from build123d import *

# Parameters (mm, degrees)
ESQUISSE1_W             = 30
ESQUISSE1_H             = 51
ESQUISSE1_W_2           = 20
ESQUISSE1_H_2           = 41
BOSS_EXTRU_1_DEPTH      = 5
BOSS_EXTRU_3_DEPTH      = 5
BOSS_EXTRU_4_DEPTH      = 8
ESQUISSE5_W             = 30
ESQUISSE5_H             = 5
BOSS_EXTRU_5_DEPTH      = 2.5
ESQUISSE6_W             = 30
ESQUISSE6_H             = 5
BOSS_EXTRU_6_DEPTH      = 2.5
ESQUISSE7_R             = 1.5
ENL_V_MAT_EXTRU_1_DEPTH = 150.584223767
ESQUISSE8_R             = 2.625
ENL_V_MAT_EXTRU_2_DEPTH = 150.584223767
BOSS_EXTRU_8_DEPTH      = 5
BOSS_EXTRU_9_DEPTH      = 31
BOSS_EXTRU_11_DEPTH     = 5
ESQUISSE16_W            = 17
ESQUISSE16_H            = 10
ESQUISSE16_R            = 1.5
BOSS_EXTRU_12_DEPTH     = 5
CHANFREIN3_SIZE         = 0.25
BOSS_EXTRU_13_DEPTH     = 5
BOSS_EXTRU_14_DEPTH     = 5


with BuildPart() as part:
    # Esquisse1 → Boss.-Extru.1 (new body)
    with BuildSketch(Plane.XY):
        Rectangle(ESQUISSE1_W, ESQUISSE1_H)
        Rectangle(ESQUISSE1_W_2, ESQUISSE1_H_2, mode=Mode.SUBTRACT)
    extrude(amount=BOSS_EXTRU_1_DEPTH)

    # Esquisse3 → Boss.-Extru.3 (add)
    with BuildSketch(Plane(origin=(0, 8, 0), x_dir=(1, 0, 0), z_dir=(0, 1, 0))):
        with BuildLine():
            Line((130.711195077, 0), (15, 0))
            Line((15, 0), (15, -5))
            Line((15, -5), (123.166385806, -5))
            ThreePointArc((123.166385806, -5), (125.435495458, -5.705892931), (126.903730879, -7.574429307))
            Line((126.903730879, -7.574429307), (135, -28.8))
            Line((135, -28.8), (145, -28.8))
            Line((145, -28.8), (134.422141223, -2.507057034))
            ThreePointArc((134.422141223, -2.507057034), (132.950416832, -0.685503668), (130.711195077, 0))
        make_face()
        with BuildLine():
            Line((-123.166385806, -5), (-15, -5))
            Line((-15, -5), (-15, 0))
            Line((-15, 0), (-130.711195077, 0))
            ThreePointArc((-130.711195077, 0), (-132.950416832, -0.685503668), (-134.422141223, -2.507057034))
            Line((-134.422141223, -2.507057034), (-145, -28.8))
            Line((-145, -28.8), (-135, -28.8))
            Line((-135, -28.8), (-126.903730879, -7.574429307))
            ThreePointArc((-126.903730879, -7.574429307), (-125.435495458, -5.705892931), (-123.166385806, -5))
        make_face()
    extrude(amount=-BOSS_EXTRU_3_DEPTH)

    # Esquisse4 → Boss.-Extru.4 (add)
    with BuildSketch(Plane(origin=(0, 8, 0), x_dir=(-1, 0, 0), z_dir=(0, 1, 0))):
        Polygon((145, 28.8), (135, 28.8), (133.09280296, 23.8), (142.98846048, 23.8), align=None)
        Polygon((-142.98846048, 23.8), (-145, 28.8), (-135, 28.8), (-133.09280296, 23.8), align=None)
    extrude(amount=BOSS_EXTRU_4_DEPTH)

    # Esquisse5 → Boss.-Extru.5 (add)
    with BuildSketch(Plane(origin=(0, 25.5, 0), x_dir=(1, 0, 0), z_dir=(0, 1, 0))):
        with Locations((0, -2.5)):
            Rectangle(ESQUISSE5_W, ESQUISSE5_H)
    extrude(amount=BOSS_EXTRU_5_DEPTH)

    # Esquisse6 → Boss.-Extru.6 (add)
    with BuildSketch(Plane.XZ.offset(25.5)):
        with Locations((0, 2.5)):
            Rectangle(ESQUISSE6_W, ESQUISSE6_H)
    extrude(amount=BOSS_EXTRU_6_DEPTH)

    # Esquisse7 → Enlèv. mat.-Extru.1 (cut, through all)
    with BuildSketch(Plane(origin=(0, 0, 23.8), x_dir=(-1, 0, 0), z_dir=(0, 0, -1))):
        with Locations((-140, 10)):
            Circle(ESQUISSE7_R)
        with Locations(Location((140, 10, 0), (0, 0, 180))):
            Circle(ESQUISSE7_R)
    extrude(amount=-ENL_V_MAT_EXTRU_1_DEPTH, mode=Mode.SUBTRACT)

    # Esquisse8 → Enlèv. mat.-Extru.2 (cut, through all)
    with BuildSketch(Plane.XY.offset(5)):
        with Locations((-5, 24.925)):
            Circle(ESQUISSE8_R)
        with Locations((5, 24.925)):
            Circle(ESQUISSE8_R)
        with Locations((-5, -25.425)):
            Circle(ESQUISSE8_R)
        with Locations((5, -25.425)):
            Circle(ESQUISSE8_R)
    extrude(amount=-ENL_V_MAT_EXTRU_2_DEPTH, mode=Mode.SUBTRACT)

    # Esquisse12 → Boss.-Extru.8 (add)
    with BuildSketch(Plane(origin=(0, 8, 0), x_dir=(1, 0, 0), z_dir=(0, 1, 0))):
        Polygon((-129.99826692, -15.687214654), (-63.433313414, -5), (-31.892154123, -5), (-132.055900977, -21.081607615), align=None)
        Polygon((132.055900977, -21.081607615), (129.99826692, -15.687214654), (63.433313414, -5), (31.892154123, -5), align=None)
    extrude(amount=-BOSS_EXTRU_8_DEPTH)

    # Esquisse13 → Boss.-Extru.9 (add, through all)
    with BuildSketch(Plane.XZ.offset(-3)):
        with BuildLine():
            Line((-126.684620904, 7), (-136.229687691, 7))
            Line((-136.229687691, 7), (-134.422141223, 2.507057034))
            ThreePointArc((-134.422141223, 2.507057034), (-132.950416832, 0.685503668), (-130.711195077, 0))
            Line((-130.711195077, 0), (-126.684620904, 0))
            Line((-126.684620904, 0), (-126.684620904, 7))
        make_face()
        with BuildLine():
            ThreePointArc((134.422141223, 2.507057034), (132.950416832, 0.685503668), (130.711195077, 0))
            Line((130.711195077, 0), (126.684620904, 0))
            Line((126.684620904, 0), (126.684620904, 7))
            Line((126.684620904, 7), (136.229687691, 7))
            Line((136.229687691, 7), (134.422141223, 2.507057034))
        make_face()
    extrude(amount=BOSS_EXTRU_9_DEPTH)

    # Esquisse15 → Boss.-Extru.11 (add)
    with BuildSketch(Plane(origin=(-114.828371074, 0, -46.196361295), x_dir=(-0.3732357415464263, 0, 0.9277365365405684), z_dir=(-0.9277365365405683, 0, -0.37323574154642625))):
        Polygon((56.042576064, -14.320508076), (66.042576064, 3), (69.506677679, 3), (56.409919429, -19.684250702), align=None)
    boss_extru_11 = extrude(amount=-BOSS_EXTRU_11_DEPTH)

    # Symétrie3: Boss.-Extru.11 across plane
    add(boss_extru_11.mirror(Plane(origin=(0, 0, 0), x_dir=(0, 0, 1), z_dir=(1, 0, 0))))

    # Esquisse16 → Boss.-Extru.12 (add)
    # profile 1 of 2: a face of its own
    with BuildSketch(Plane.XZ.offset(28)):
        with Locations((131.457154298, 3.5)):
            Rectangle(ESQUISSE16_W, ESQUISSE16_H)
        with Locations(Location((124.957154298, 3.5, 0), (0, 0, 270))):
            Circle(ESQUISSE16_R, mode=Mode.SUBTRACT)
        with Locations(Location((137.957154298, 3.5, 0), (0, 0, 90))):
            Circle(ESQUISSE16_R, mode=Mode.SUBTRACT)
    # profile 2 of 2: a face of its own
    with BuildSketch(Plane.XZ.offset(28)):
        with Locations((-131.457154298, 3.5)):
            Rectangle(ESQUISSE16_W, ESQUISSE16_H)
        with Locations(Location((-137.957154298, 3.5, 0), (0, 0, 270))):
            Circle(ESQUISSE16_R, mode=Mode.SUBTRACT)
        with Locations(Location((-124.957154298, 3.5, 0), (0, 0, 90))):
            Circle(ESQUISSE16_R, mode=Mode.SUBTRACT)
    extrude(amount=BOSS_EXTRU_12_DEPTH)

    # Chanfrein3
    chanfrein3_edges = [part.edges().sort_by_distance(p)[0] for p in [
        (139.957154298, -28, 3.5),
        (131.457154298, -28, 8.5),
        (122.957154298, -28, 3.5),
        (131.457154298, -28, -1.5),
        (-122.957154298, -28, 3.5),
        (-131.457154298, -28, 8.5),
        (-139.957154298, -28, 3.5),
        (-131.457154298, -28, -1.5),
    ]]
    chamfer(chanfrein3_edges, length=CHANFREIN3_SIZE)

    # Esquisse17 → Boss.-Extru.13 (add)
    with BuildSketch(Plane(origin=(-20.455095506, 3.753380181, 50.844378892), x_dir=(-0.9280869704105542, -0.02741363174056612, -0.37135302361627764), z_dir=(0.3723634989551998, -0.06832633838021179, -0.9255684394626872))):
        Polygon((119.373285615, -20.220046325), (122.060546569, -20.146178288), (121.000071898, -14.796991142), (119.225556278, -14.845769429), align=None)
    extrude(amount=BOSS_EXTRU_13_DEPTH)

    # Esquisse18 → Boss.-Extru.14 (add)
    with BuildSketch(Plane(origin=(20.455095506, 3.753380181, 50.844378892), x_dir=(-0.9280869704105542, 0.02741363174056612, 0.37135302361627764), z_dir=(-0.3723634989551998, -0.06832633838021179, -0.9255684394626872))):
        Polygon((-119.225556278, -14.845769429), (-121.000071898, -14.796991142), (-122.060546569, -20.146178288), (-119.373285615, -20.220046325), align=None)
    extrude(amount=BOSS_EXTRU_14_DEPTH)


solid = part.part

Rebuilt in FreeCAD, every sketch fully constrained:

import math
import FreeCAD as App
import Part
import Sketcher

V = App.Vector
Q = App.Units.Quantity


def edges_at(feature, points):
    """Names of the edges that pass closest to the given points."""
    edges = feature.Shape.Edges
    near = lambda p: min(range(len(edges)), key=lambda i: edges[i].distToShape(Part.Vertex(*p))[0])
    return sorted({f"Edge{near(p) + 1}" for p in points})


def add_polygon(sketch, points):
    """Adds a closed chain of lines whose ends are joined by coincident constraints."""
    first, n = sketch.GeometryCount, len(points)
    for a, b in zip(points, points[1:] + points[:1]):
        sketch.addGeometry(Part.LineSegment(App.Vector(*a, 0), App.Vector(*b, 0)), False)
    for i in range(n):
        sketch.addConstraint(Sketcher.Constraint("Coincident", first + i, 2, first + (i + 1) % n, 1))

doc = App.newDocument("Part")
body = doc.addObject("PartDesign::Body", "Body")

# Sketch on XY plane
sketch1 = body.newObject("Sketcher::SketchObject", "Sketch")
sketch1.AttachmentSupport = (doc.getObject("XY_Plane"), [""])
sketch1.MapMode = "FlatFace"
add_polygon(sketch1, [(-15, 26), (-15, -26), (15, -26), (15, 26)])  # lines 0-3
add_polygon(sketch1, [(10, -20), (-10, -20), (-10, 20), (10, 20)])  # lines 4-7
sketch1.addConstraint([
    Sketcher.Constraint("Vertical", 0),
    Sketcher.Constraint("Horizontal", 1),
    Sketcher.Constraint("Vertical", 2),
    Sketcher.Constraint("Horizontal", 3),
    Sketcher.Constraint("Horizontal", 4),
    Sketcher.Constraint("Vertical", 5),
    Sketcher.Constraint("Horizontal", 6),
    Sketcher.Constraint("Vertical", 7),
    Sketcher.Constraint("Symmetric", 0, 2, 2, 2, -1, 1),
    Sketcher.Constraint("Symmetric", 4, 2, 6, 2, -1, 1),
    Sketcher.Constraint("DistanceX", 1, 1, 1, 2, Q("30 mm")),
    Sketcher.Constraint("DistanceX", 4, 2, 4, 1, Q("20 mm")),
    Sketcher.Constraint("DistanceY", 0, 2, 0, 1, Q("51 mm")),
    Sketcher.Constraint("DistanceY", 5, 1, 5, 2, Q("41 mm")),
])
pad1 = body.newObject("PartDesign::Pad", "Pad")
pad1.Profile = sketch1
pad1.Length = 5

# Sketch on XZ plane
sketch2 = body.newObject("Sketcher::SketchObject", "Sketch001")
sketch2.AttachmentSupport = (doc.getObject("XZ_Plane"), [""])
sketch2.MapMode = "FlatFace"
sketch2.AttachmentOffset = App.Placement(V(0, 0, -8), App.Rotation())
sketch2.addGeometry([
    Part.LineSegment(V(130.7, 0, 0), V(15, 0, 0)),  # 0
    Part.LineSegment(V(15, 0, 0), V(15, 5, 0)),  # 1
    Part.LineSegment(V(15, 5, 0), V(123.2, 5, 0)),  # 2
    Part.ArcOfCircle(Part.Circle(V(123.2, 9, 0), V(0, 0, 1), 4), math.radians(-90), math.radians(-21)),  # 3
    Part.LineSegment(V(126.9, 7.6, 0), V(135, 28.8, 0)),  # 4
    Part.LineSegment(V(135, 28.8, 0), V(145, 28.8, 0)),  # 5
    Part.LineSegment(V(145, 28.8, 0), V(134.4, 2.5, 0)),  # 6
    Part.ArcOfCircle(Part.Circle(V(130.7, 4, 0), V(0, 0, 1), 4), math.radians(-90), math.radians(-22)),  # 7
    Part.LineSegment(V(-123.2, 5, 0), V(-15, 5, 0)),  # 8
    Part.LineSegment(V(-15, 5, 0), V(-15, 0, 0)),  # 9
    Part.LineSegment(V(-15, 0, 0), V(-130.7, 0, 0)),  # 10
    Part.ArcOfCircle(Part.Circle(V(-130.7, 4, 0), V(0, 0, 1), 4), math.radians(-158), math.radians(-90)),  # 11
    Part.LineSegment(V(-134.4, 2.5, 0), V(-145, 28.8, 0)),  # 12
    Part.LineSegment(V(-145, 28.8, 0), V(-135, 28.8, 0)),  # 13
    Part.LineSegment(V(-135, 28.8, 0), V(-126.9, 7.6, 0)),  # 14
    Part.ArcOfCircle(Part.Circle(V(-123.2, 9, 0), V(0, 0, 1), 4), math.radians(-159), math.radians(-90)),  # 15
], False)
sketch2.addConstraint([
    Sketcher.Constraint("Coincident", 0, 2, 1, 1),
    Sketcher.Constraint("Coincident", 1, 2, 2, 1),
    Sketcher.Constraint("Tangent", 2, 2, 3, 1),
    Sketcher.Constraint("Tangent", 3, 2, 4, 1),
    Sketcher.Constraint("Coincident", 4, 2, 5, 1),
    Sketcher.Constraint("Coincident", 5, 2, 6, 1),
    Sketcher.Constraint("Tangent", 6, 2, 7, 2),
    Sketcher.Constraint("Tangent", 7, 1, 0, 1),
    Sketcher.Constraint("Coincident", 8, 2, 9, 1),
    Sketcher.Constraint("Coincident", 9, 2, 10, 1),
    Sketcher.Constraint("Tangent", 10, 2, 11, 2),
    Sketcher.Constraint("Tangent", 11, 1, 12, 1),
    Sketcher.Constraint("Coincident", 12, 2, 13, 1),
    Sketcher.Constraint("Coincident", 13, 2, 14, 1),
    Sketcher.Constraint("Tangent", 14, 2, 15, 1),
    Sketcher.Constraint("Tangent", 15, 2, 8, 1),
    Sketcher.Constraint("Horizontal", 0),
    Sketcher.Constraint("Vertical", 1),
    Sketcher.Constraint("Horizontal", 2),
    Sketcher.Constraint("Horizontal", 5),
    Sketcher.Constraint("Horizontal", 8),
    Sketcher.Constraint("Vertical", 9),
    Sketcher.Constraint("Horizontal", 10),
    Sketcher.Constraint("Horizontal", 13),
    Sketcher.Constraint("Equal", 3, 7),
    Sketcher.Constraint("Equal", 7, 11),
    Sketcher.Constraint("Equal", 11, 15),
    Sketcher.Constraint("Symmetric", 0, 2, 9, 2, -1, 1),
    Sketcher.Constraint("Symmetric", 7, 3, 11, 3, -2),
    Sketcher.Constraint("Symmetric", 3, 3, 15, 3, -2),
    Sketcher.Constraint("Symmetric", 5, 2, 12, 2, -2),
    Sketcher.Constraint("Horizontal", 3, 2, 14, 2),
    Sketcher.Constraint("Radius", 3, Q("4 mm")),
    Sketcher.Constraint("DistanceX", 5, 1, 5, 2, Q("10 mm")),
    Sketcher.Constraint("DistanceY", 1, 1, 1, 2, Q("5 mm")),
    Sketcher.Constraint("DistanceX", -1, 1, 0, 2, Q("15 mm")),
    Sketcher.Constraint("DistanceX", -1, 1, 4, 2, Q("135 mm")),
    Sketcher.Constraint("DistanceY", -1, 1, 4, 2, Q("28.8 mm")),
    Sketcher.Constraint("Distance", 4, Q("22.717272 mm")),
    Sketcher.Constraint("Distance", 6, Q("28.340959 mm")),
])
pad2 = body.newObject("PartDesign::Pad", "Pad001")
pad2.Profile = sketch2
pad2.Length = 5

# Sketch on XZ plane
sketch3 = body.newObject("Sketcher::SketchObject", "Sketch002")
sketch3.AttachmentSupport = (doc.getObject("XZ_Plane"), [""])
sketch3.MapMode = "FlatFace"
sketch3.AttachmentOffset = App.Placement(V(0, 0, -8), App.Rotation())
add_polygon(sketch3, [(-145, 29), (-135, 29), (-133, 24), (-143, 24)])  # lines 0-3
add_polygon(sketch3, [(145, 29), (143, 24), (133, 24), (135, 29)])  # lines 4-7
sketch3.addConstraint([
    Sketcher.Constraint("Horizontal", 0),
    Sketcher.Constraint("Horizontal", 2),
    Sketcher.Constraint("Horizontal", 5),
    Sketcher.Constraint("Horizontal", 7),
    Sketcher.Constraint("Symmetric", 2, 2, 4, 2, -2),
    Sketcher.Constraint("Symmetric", 0, 2, 6, 2, -2),
    Sketcher.Constraint("Equal", 2, 5),
    Sketcher.Constraint("Equal", 0, 7),
    Sketcher.Constraint("DistanceX", 0, 1, 0, 2, Q("10 mm")),
    Sketcher.Constraint("DistanceX", 0, 2, -1, 1, Q("135 mm")),
    Sketcher.Constraint("DistanceY", 1, 2, 0, 2, Q("5 mm")),
    Sketcher.Constraint("DistanceY", -1, 1, 0, 2, Q("28.8 mm")),
    Sketcher.Constraint("Distance", 3, Q("5.389461 mm")),
    Sketcher.Constraint("DistanceX", 2, 2, 2, 1, Q("9.895658 mm")),
])
pad3 = body.newObject("PartDesign::Pad", "Pad002")
pad3.Profile = sketch3
pad3.Length = 8
pad3.Reversed = True

# Sketch on XZ plane
sketch4 = body.newObject("Sketcher::SketchObject", "Sketch003")
sketch4.AttachmentSupport = (doc.getObject("XZ_Plane"), [""])
sketch4.MapMode = "FlatFace"
sketch4.AttachmentOffset = App.Placement(V(0, 0, -25.5), App.Rotation())
add_polygon(sketch4, [(-15, 0), (-15, 5), (15, 5), (15, 0)])  # lines 0-3
sketch4.addConstraint([
    Sketcher.Constraint("Vertical", 0),
    Sketcher.Constraint("Horizontal", 1),
    Sketcher.Constraint("Vertical", 2),
    Sketcher.Constraint("Horizontal", 3),
    Sketcher.Constraint("Symmetric", 2, 2, 3, 2, -1, 1),
    Sketcher.Constraint("DistanceX", 1, 1, 1, 2, Q("30 mm")),
    Sketcher.Constraint("DistanceY", 0, 1, 0, 2, Q("5 mm")),
])
pad4 = body.newObject("PartDesign::Pad", "Pad003")
pad4.Profile = sketch4
pad4.Length = 2.5
pad4.Reversed = True

# Sketch on XZ plane
sketch5 = body.newObject("Sketcher::SketchObject", "Sketch004")
sketch5.AttachmentSupport = (doc.getObject("XZ_Plane"), [""])
sketch5.MapMode = "FlatFace"
sketch5.AttachmentOffset = App.Placement(V(0, 0, 25.5), App.Rotation())
add_polygon(sketch5, [(-15, 5), (-15, 0), (15, 0), (15, 5)])  # lines 0-3
sketch5.addConstraint([
    Sketcher.Constraint("Vertical", 0),
    Sketcher.Constraint("Horizontal", 1),
    Sketcher.Constraint("Vertical", 2),
    Sketcher.Constraint("Horizontal", 3),
    Sketcher.Constraint("Symmetric", 0, 2, 1, 2, -1, 1),
    Sketcher.Constraint("DistanceX", 1, 1, 1, 2, Q("30 mm")),
    Sketcher.Constraint("DistanceY", 0, 2, 0, 1, Q("5 mm")),
])
pad5 = body.newObject("PartDesign::Pad", "Pad004")
pad5.Profile = sketch5
pad5.Length = 2.5

# Sketch on XY plane
sketch6 = body.newObject("Sketcher::SketchObject", "Sketch005")
sketch6.AttachmentSupport = (doc.getObject("XY_Plane"), [""])
sketch6.MapMode = "FlatFace"
sketch6.AttachmentOffset = App.Placement(V(0, 0, 23.8), App.Rotation())
sketch6.addGeometry([
    Part.Circle(V(140, 10, 0), V(0, 0, 1), 1.5),
    Part.Circle(V(-140, 10, 0), V(0, 0, 1), 1.5),
], False)
sketch6.addConstraint([
    Sketcher.Constraint("Equal", 0, 1),
    Sketcher.Constraint("Symmetric", 0, 3, 1, 3, -2),
    Sketcher.Constraint("Diameter", 0, Q("3 mm")),
    Sketcher.Constraint("DistanceX", -1, 1, 0, 3, Q("140 mm")),
    Sketcher.Constraint("DistanceY", -1, 1, 0, 3, Q("10 mm")),
])
pocket1 = body.newObject("PartDesign::Pocket", "Pocket")
pocket1.Profile = sketch6
pocket1.Type = "ThroughAll"
pocket1.Reversed = True

# Sketch on XY plane
sketch7 = body.newObject("Sketcher::SketchObject", "Sketch006")
sketch7.AttachmentSupport = (doc.getObject("XY_Plane"), [""])
sketch7.MapMode = "FlatFace"
sketch7.AttachmentOffset = App.Placement(V(0, 0, 5), App.Rotation())
sketch7.addGeometry([
    Part.Circle(V(-5, 24.9, 0), V(0, 0, 1), 2.6),
    Part.Circle(V(5, 24.9, 0), V(0, 0, 1), 2.6),
    Part.Circle(V(-5, -25.4, 0), V(0, 0, 1), 2.6),
    Part.Circle(V(5, -25.4, 0), V(0, 0, 1), 2.6),
], False)
sketch7.addConstraint([
    Sketcher.Constraint("Equal", 0, 1),
    Sketcher.Constraint("Equal", 1, 2),
    Sketcher.Constraint("Equal", 2, 3),
    Sketcher.Constraint("Symmetric", 0, 3, 1, 3, -2),
    Sketcher.Constraint("Symmetric", 2, 3, 3, 3, -2),
    Sketcher.Constraint("Vertical", 0, 3, 2, 3),
    Sketcher.Constraint("Diameter", 0, Q("5.25 mm")),
    Sketcher.Constraint("DistanceX", 0, 3, -1, 1, Q("5 mm")),
    Sketcher.Constraint("DistanceY", 2, 3, 0, 3, Q("50.35 mm")),
    Sketcher.Constraint("DistanceY", -1, 1, 0, 3, Q("24.925 mm")),
])
pocket2 = body.newObject("PartDesign::Pocket", "Pocket001")
pocket2.Profile = sketch7
pocket2.Type = "ThroughAll"

# Sketch on XZ plane
sketch8 = body.newObject("Sketcher::SketchObject", "Sketch007")
sketch8.AttachmentSupport = (doc.getObject("XZ_Plane"), [""])
sketch8.MapMode = "FlatFace"
sketch8.AttachmentOffset = App.Placement(V(0, 0, -8), App.Rotation())
add_polygon(sketch8, [(-63, 5), (-130, 16), (-132, 21), (-32, 5)])  # lines 0-3
add_polygon(sketch8, [(132, 21), (130, 16), (63, 5), (32, 5)])  # lines 4-7
sketch8.addConstraint([
    Sketcher.Constraint("Horizontal", 3),
    Sketcher.Constraint("Horizontal", 6),
    Sketcher.Constraint("Symmetric", 0, 2, 4, 2, -2),
    Sketcher.Constraint("Symmetric", 3, 2, 5, 2, -2),
    Sketcher.Constraint("Symmetric", 1, 2, 7, 2, -2),
    Sketcher.Constraint("Parallel", 0, 2),
    Sketcher.Constraint("Parallel", 5, 7),
    Sketcher.Constraint("DistanceY", -1, 1, 2, 2, Q("5 mm")),
    Sketcher.Constraint("DistanceX", 3, 2, 3, 1, Q("31.541159 mm")),
    Sketcher.Constraint("DistanceX", 1, 2, -1, 1, Q("132.055901 mm")),
    Sketcher.Constraint("Distance", 2, Q("101.446509 mm")),
    Sketcher.Constraint("DistanceX", 2, 2, 4, 2, Q("161.890421 mm")),
    Sketcher.Constraint("DistanceX", 2, 2, 6, 2, Q("63.784308 mm")),
])
pad6 = body.newObject("PartDesign::Pad", "Pad005")
pad6.Profile = sketch8
pad6.Length = 5

# Sketch on XZ plane
sketch9 = body.newObject("Sketcher::SketchObject", "Sketch008")
sketch9.AttachmentSupport = (doc.getObject("XZ_Plane"), [""])
sketch9.MapMode = "FlatFace"
sketch9.AttachmentOffset = App.Placement(V(0, 0, -3), App.Rotation())
sketch9.addGeometry([
    Part.LineSegment(V(-126.7, 7, 0), V(-136.2, 7, 0)),  # 0
    Part.LineSegment(V(-136.2, 7, 0), V(-134.4, 2.5, 0)),  # 1
    Part.ArcOfCircle(Part.Circle(V(-130.7, 4, 0), V(0, 0, 1), 4), math.radians(-158), math.radians(-90)),  # 2
    Part.LineSegment(V(-130.7, 0, 0), V(-126.7, 0, 0)),  # 3
    Part.LineSegment(V(-126.7, 0, 0), V(-126.7, 7, 0)),  # 4
    Part.ArcOfCircle(Part.Circle(V(130.7, 4, 0), V(0, 0, 1), 4), math.radians(-90), math.radians(-22)),  # 5
    Part.LineSegment(V(134.4, 2.5, 0), V(136.2, 7, 0)),  # 6
    Part.LineSegment(V(136.2, 7, 0), V(126.7, 7, 0)),  # 7
    Part.LineSegment(V(126.7, 7, 0), V(126.7, 0, 0)),  # 8
    Part.LineSegment(V(126.7, 0, 0), V(130.7, 0, 0)),  # 9
], False)
sketch9.addConstraint([
    Sketcher.Constraint("Coincident", 0, 2, 1, 1),
    Sketcher.Constraint("Tangent", 1, 2, 2, 1),
    Sketcher.Constraint("Tangent", 2, 2, 3, 1),
    Sketcher.Constraint("Coincident", 3, 2, 4, 1),
    Sketcher.Constraint("Coincident", 4, 2, 0, 1),
    Sketcher.Constraint("Tangent", 5, 2, 6, 1),
    Sketcher.Constraint("Coincident", 6, 2, 7, 1),
    Sketcher.Constraint("Coincident", 7, 2, 8, 1),
    Sketcher.Constraint("Coincident", 8, 2, 9, 1),
    Sketcher.Constraint("Tangent", 9, 2, 5, 1),
    Sketcher.Constraint("Horizontal", 0),
    Sketcher.Constraint("Horizontal", 3),
    Sketcher.Constraint("Vertical", 4),
    Sketcher.Constraint("Horizontal", 7),
    Sketcher.Constraint("Vertical", 8),
    Sketcher.Constraint("Horizontal", 9),
    Sketcher.Constraint("Equal", 2, 5),
    Sketcher.Constraint("Symmetric", 3, 2, 8, 2, -1, 1),
    Sketcher.Constraint("Symmetric", 2, 3, 5, 3, -2),
    Sketcher.Constraint("Symmetric", 0, 2, 6, 2, -2),
    Sketcher.Constraint("Radius", 2, Q("4 mm")),
    Sketcher.Constraint("DistanceY", 4, 1, 4, 2, Q("7 mm")),
    Sketcher.Constraint("Distance", 1, Q("4.842908 mm")),
    Sketcher.Constraint("DistanceX", 0, 2, 0, 1, Q("9.545067 mm")),
    Sketcher.Constraint("DistanceX", 1, 2, -1, 1, Q("134.422141 mm")),
])
pad7 = body.newObject("PartDesign::Pad", "Pad006")
pad7.Profile = sketch9
pad7.Type = "UpToLast"

# Sketch on an angled plane
sketch10 = body.newObject("Sketcher::SketchObject", "Sketch009")
sketch10.Placement = App.Placement(V(-114.828371, 0, -46.196361), App.Rotation(V(-0.373235742, 0, 0.927736537), V(0, 1.000000001, 0), V(-0.927736537, 0, -0.373235742), "ZXY"))
add_polygon(sketch10, [(66, 3), (56, -14.3), (56.4, -19.7), (69.5, 3)])  # lines 0-3
sketch10.addConstraint([
    Sketcher.Constraint("Horizontal", 3),
    Sketcher.Constraint("Parallel", 0, 2),
    Sketcher.Constraint("Angle", 0, Q("-120 deg")),
    Sketcher.Constraint("Distance", 0, Q("20 mm")),
    Sketcher.Constraint("DistanceY", -1, 1, 2, 2, Q("3 mm")),
    Sketcher.Constraint("DistanceX", 3, 2, 3, 1, Q("3.464102 mm")),
    Sketcher.Constraint("DistanceX", -1, 1, 1, 2, Q("56.409919 mm")),
    Sketcher.Constraint("DistanceY", 1, 2, -1, 1, Q("19.684251 mm")),
])
pad8 = body.newObject("PartDesign::Pad", "Pad007")
pad8.Profile = sketch10
pad8.Length = 5
pad8.Reversed = True
doc.recompute()

mirrored = body.newObject("PartDesign::Mirrored", "Mirrored")
mirrored.Originals = [pad8]
mirrored.MirrorPlane = (doc.getObject("YZ_Plane"), [""])
body.Tip = mirrored

# Sketch on XZ plane
sketch11 = body.newObject("Sketcher::SketchObject", "Sketch010")
sketch11.AttachmentSupport = (doc.getObject("XZ_Plane"), [""])
sketch11.MapMode = "FlatFace"
sketch11.AttachmentOffset = App.Placement(V(0, 0, 28), App.Rotation())
add_polygon(sketch11, [(123, 8.5), (123, -1.5), (140, -1.5), (140, 8.5)])  # lines 0-3
sketch11.addGeometry(Part.Circle(V(125, 3.5, 0), V(0, 0, 1), 1.5), False)  # 4
sketch11.addGeometry(Part.Circle(V(138, 3.5, 0), V(0, 0, 1), 1.5), False)  # 5
add_polygon(sketch11, [(-140, 8.5), (-140, -1.5), (-123, -1.5), (-123, 8.5)])  # lines 6-9
sketch11.addGeometry(Part.Circle(V(-138, 3.5, 0), V(0, 0, 1), 1.5), False)  # 10
sketch11.addGeometry(Part.Circle(V(-125, 3.5, 0), V(0, 0, 1), 1.5), False)  # 11
sketch11.addConstraint([
    Sketcher.Constraint("Vertical", 0),
    Sketcher.Constraint("Horizontal", 1),
    Sketcher.Constraint("Vertical", 2),
    Sketcher.Constraint("Horizontal", 3),
    Sketcher.Constraint("Vertical", 6),
    Sketcher.Constraint("Horizontal", 7),
    Sketcher.Constraint("Vertical", 8),
    Sketcher.Constraint("Horizontal", 9),
    Sketcher.Constraint("Equal", 4, 5),
    Sketcher.Constraint("Equal", 5, 10),
    Sketcher.Constraint("Equal", 10, 11),
    Sketcher.Constraint("Symmetric", 5, 3, 10, 3, -2),
    Sketcher.Constraint("Symmetric", 4, 3, 11, 3, -2),
    Sketcher.Constraint("Symmetric", 1, 2, 6, 2, -2),
    Sketcher.Constraint("Symmetric", 3, 2, 8, 2, -2),
    Sketcher.Constraint("Horizontal", 4, 3, 5, 3),
    Sketcher.Constraint("Diameter", 4, Q("3 mm")),
    Sketcher.Constraint("DistanceX", 1, 1, 1, 2, Q("17 mm")),
    Sketcher.Constraint("DistanceY", 0, 2, 0, 1, Q("10 mm")),
    Sketcher.Constraint("DistanceX", 4, 3, 5, 3, Q("13 mm")),
    Sketcher.Constraint("DistanceX", 0, 2, 4, 3, Q("2 mm")),
    Sketcher.Constraint("DistanceY", 0, 2, 4, 3, Q("5 mm")),
    Sketcher.Constraint("DistanceY", -1, 1, 4, 3, Q("3.5 mm")),
    Sketcher.Constraint("DistanceX", 10, 3, 4, 3, Q("262.914309 mm")),
])
pad9 = body.newObject("PartDesign::Pad", "Pad008")
pad9.Profile = sketch11
pad9.Length = 5
doc.recompute()

chamfer = body.newObject("PartDesign::Chamfer", "Chamfer")
chamfer.Base = (pad9, edges_at(pad9, [
    (139.957, -28, 3.5),
    (131.457, -28, 8.5),
    (122.957, -28, 3.5),
    (131.457, -28, -1.5),
    (-122.957, -28, 3.5),
    (-131.457, -28, 8.5),
    (-139.957, -28, 3.5),
    (-131.457, -28, -1.5),
]))
chamfer.Size = 0.25

# Sketch on an angled plane
sketch12 = body.newObject("Sketcher::SketchObject", "Sketch011")
sketch12.Placement = App.Placement(V(-20.455096, 3.75338, 50.844379), App.Rotation(V(-0.92808697, -0.027413632, -0.371353024), V(0, 0.997286319, -0.07362062), V(0.372363499, -0.068326338, -0.925568439), "ZXY"))
add_polygon(sketch12, [(119.4, -20.2), (122.1, -20.1), (121, -14.8), (119.2, -14.8)])  # lines 0-3
sketch12.addConstraint([
    Sketcher.Constraint("Parallel", 0, 2),
    Sketcher.Constraint("Perpendicular", 2, 3),
    Sketcher.Constraint("DistanceY", 0, 2, -1, 1, Q("20.146178 mm")),
    Sketcher.Constraint("DistanceX", -1, 1, 1, 2, Q("121.000072 mm")),
    Sketcher.Constraint("DistanceY", 1, 2, -1, 1, Q("14.796991 mm")),
    Sketcher.Constraint("DistanceY", 2, 2, -1, 1, Q("14.845769 mm")),
    Sketcher.Constraint("DistanceX", 2, 2, 0, 2, Q("2.83499 mm")),
    Sketcher.Constraint("DistanceX", 3, 2, 0, 2, Q("2.687261 mm")),
])
pad10 = body.newObject("PartDesign::Pad", "Pad009")
pad10.Profile = sketch12
pad10.Length = 5

# Sketch on an angled plane
sketch13 = body.newObject("Sketcher::SketchObject", "Sketch012")
sketch13.Placement = App.Placement(V(20.455096, 3.75338, 50.844379), App.Rotation(V(-0.92808697, 0.027413632, 0.371353024), V(0, 0.997286319, -0.07362062), V(-0.372363499, -0.068326338, -0.925568439), "ZXY"))
add_polygon(sketch13, [(-119.2, -14.8), (-121, -14.8), (-122.1, -20.1), (-119.4, -20.2)])  # lines 0-3
sketch13.addConstraint([
    Sketcher.Constraint("Parallel", 0, 2),
    Sketcher.Constraint("Perpendicular", 2, 3),
    Sketcher.Constraint("DistanceX", 0, 2, -1, 1, Q("121.000072 mm")),
    Sketcher.Constraint("DistanceY", 0, 2, -1, 1, Q("14.796991 mm")),
    Sketcher.Constraint("DistanceY", 1, 2, -1, 1, Q("20.146178 mm")),
    Sketcher.Constraint("DistanceY", 3, 2, -1, 1, Q("14.845769 mm")),
    Sketcher.Constraint("DistanceX", 1, 2, 2, 2, Q("2.687261 mm")),
    Sketcher.Constraint("DistanceY", 2, 2, 1, 2, Q("0.073868 mm")),
])
pad11 = body.newObject("PartDesign::Pad", "Pad010")
pad11.Profile = sketch13
pad11.Length = 5

doc.recompute()
